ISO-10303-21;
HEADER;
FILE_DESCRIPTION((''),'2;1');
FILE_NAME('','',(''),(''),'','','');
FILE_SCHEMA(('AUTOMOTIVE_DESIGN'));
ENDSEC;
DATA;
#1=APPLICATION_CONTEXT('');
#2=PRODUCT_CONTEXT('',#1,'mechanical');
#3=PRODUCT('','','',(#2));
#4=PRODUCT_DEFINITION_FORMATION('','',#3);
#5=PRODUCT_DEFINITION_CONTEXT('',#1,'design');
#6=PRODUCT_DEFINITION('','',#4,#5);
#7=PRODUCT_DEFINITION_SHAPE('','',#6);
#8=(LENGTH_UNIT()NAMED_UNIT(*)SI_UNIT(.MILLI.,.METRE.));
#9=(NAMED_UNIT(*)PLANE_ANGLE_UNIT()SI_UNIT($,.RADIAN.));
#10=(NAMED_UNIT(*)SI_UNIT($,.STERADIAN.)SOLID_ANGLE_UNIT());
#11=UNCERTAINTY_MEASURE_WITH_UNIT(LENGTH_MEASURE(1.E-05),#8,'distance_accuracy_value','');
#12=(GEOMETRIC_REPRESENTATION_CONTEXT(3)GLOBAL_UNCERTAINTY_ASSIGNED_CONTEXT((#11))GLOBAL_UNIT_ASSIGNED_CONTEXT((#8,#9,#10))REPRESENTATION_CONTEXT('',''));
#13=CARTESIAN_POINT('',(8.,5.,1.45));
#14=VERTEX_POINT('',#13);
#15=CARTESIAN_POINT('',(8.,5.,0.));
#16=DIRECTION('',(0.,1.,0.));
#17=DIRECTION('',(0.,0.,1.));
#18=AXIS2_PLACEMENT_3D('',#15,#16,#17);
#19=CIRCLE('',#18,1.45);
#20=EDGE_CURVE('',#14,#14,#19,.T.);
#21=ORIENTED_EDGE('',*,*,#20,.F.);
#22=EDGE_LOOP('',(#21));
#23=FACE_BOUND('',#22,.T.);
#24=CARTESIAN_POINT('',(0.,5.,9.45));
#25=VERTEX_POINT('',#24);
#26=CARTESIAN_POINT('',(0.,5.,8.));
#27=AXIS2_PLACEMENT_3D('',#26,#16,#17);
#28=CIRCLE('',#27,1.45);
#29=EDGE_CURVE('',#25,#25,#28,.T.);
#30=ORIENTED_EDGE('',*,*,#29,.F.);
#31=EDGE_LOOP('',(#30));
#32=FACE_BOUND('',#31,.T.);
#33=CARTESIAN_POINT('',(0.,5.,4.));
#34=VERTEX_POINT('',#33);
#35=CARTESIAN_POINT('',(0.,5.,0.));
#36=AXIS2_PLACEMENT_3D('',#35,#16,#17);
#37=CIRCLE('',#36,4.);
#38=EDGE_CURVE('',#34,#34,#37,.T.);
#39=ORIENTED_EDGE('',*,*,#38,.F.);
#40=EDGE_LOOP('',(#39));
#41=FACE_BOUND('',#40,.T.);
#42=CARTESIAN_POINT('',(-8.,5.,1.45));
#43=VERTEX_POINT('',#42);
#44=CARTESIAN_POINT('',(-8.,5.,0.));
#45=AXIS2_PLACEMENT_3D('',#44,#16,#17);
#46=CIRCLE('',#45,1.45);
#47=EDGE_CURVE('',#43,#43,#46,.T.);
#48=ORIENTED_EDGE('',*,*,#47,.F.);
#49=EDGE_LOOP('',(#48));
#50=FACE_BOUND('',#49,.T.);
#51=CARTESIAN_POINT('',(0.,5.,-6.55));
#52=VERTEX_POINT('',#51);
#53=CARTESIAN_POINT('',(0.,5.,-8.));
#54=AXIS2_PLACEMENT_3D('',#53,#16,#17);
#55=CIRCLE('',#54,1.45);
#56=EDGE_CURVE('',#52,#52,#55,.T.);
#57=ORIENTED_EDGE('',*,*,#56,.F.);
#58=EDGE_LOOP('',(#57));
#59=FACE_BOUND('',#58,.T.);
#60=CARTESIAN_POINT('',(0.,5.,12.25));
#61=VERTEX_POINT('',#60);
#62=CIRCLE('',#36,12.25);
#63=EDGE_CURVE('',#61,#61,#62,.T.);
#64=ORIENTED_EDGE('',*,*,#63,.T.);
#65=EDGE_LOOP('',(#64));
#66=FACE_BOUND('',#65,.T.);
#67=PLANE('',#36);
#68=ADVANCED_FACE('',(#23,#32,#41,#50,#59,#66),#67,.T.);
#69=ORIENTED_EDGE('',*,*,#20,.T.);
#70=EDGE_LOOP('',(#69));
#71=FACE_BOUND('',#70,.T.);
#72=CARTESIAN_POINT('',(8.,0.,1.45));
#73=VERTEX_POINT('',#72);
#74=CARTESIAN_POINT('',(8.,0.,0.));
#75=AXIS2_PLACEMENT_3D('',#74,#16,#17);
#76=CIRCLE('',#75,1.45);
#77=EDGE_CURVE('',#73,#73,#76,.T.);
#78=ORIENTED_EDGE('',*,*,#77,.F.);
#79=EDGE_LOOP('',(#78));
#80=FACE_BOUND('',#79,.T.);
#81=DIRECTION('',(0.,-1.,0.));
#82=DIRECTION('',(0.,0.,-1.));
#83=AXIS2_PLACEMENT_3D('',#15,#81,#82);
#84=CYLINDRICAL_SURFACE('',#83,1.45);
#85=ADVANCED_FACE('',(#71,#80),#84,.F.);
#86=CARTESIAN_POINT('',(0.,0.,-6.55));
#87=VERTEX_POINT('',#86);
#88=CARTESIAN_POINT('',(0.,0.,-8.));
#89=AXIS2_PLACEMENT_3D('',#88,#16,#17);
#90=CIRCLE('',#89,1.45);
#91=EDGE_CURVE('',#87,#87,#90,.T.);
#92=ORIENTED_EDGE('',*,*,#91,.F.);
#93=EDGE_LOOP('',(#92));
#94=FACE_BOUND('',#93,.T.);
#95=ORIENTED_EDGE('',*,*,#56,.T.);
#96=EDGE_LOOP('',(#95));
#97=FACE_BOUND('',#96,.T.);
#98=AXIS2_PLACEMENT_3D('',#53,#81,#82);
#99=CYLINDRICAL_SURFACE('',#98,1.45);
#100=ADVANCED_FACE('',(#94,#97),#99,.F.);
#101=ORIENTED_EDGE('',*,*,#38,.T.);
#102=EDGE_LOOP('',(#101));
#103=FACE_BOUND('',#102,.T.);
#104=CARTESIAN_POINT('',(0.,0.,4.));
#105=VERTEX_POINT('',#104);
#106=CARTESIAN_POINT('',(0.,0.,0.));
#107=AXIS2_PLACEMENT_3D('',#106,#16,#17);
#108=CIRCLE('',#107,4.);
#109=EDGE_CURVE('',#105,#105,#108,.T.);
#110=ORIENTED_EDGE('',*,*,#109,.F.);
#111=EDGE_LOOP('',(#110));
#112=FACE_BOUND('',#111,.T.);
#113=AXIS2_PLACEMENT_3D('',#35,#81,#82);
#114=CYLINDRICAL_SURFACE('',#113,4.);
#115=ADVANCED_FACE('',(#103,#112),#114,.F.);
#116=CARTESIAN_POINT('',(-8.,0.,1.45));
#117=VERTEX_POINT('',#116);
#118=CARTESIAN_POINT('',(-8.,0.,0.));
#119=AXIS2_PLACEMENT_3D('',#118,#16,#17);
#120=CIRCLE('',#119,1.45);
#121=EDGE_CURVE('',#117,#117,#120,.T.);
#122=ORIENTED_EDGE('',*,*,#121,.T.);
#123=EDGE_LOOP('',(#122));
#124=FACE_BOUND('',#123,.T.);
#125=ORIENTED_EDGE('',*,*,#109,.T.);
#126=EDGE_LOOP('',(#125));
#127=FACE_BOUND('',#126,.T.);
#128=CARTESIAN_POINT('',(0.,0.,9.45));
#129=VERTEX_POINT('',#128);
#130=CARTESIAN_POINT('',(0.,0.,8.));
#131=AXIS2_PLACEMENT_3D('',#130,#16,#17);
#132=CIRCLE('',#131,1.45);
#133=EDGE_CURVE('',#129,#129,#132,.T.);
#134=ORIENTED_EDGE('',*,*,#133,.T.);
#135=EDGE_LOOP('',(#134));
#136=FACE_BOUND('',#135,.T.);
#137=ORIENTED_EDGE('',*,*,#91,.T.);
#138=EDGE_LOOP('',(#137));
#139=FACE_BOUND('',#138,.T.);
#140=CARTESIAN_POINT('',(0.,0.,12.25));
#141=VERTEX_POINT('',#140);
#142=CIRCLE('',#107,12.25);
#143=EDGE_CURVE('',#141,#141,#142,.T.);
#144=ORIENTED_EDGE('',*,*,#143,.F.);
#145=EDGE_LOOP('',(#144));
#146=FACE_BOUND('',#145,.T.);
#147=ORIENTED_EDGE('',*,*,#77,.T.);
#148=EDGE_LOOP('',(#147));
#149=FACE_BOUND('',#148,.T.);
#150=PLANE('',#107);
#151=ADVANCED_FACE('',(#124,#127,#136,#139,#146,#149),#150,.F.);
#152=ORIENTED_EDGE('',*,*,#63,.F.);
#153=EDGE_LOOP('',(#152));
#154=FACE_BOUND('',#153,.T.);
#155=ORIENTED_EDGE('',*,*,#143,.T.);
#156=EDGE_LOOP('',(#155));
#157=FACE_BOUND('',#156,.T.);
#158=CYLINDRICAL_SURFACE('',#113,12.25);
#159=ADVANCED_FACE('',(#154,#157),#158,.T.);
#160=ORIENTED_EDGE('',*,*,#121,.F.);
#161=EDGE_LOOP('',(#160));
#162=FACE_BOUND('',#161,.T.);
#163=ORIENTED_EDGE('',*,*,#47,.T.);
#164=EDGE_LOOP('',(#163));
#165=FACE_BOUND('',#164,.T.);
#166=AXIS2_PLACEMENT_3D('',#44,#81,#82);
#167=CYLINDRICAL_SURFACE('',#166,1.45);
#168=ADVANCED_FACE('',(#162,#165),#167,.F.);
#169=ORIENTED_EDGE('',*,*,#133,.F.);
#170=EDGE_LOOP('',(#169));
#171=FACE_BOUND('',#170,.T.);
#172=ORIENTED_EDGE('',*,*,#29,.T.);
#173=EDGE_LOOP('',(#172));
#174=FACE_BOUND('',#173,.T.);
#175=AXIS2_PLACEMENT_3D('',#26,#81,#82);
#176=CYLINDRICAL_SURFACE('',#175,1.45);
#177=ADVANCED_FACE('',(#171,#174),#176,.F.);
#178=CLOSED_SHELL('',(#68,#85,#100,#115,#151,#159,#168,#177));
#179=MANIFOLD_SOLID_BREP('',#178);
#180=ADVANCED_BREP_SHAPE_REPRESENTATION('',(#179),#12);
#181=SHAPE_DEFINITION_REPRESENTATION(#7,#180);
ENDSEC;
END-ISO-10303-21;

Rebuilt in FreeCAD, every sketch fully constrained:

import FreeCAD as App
import Part
import Sketcher
from FreeCAD import Vector

doc = App.newDocument("Part")
body = doc.addObject("PartDesign::Body", "Body")

# Sketch on XZ plane
sketch1 = doc.addObject("Sketcher::SketchObject", "Sketch")
body.addObject(sketch1)
sketch1.AttachmentSupport = (doc.XZ_Plane, [""])
sketch1.MapMode = "FlatFace"
sketch1.addGeometry([
    Part.Circle(Vector(0, 0, 0), Vector(0, 0, 1), 12.2),  # 0
    Part.Circle(Vector(0, -8, 0), Vector(0, 0, 1), 1.4),  # 1
    Part.Circle(Vector(-8, 0, 0), Vector(0, 0, 1), 1.4),  # 2
    Part.Circle(Vector(8, 0, 0), Vector(0, 0, 1), 1.4),  # 3
    Part.Circle(Vector(0, 0, 0), Vector(0, 0, 1), 4),  # 4
    Part.Circle(Vector(0, 8, 0), Vector(0, 0, 1), 1.4),  # 5
], False)
sketch1.addConstraint([
    Sketcher.Constraint("Coincident", 0, 3, -1, 1),
    Sketcher.Constraint("Coincident", 4, 3, -1, 1),
    Sketcher.Constraint("Equal", 1, 2),
    Sketcher.Constraint("Equal", 2, 3),
    Sketcher.Constraint("Equal", 3, 5),
    Sketcher.Constraint("Symmetric", 2, 3, 3, 3, -1, 1),
    Sketcher.Constraint("Symmetric", 1, 3, 5, 3, -1, 1),
    Sketcher.Constraint("PointOnObject", 1, 3, -2),
    Sketcher.Constraint("PointOnObject", 2, 3, -1),
    Sketcher.Constraint("Diameter", 4, 8.0),
    Sketcher.Constraint("Diameter", 0, 24.5),
    Sketcher.Constraint("Diameter", 1, 2.9),
    Sketcher.Constraint("DistanceY", 1, 3, -1, 1, 8.0),
    Sketcher.Constraint("DistanceX", 2, 3, -1, 1, 8.0),
])
pad1 = doc.addObject("PartDesign::Pad", "Pad")
body.addObject(pad1)
pad1.Profile = sketch1
pad1.Length = 5
pad1.Reversed = True

doc.recompute()
